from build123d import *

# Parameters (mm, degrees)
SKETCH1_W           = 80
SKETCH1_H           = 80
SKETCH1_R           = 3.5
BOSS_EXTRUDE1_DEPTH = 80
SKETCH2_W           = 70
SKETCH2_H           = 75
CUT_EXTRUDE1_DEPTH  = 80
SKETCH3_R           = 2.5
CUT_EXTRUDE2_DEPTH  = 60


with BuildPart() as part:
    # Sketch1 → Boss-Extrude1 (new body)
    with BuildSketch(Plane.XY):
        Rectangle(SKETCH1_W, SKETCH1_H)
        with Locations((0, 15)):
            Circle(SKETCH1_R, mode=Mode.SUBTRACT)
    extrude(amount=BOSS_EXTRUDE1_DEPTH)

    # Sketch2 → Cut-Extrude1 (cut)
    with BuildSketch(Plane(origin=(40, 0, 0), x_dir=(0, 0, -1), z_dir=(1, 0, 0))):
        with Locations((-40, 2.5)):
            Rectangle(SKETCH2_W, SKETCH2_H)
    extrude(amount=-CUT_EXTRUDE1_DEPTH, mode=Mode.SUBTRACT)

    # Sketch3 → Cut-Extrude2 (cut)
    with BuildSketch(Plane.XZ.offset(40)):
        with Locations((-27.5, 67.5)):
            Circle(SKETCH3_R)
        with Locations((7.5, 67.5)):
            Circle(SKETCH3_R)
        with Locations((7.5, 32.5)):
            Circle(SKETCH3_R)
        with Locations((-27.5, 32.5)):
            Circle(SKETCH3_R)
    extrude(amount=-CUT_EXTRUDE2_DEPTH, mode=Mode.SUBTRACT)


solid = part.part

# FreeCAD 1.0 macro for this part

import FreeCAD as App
import Part
import Sketcher


def add_polygon(sketch, points):
    """Adds a closed chain of lines whose ends are joined by coincident constraints."""
    first, n = sketch.GeometryCount, len(points)
    for a, b in zip(points, points[1:] + points[:1]):
        sketch.addGeometry(Part.LineSegment(App.Vector(*a, 0), App.Vector(*b, 0)), False)
    for i in range(n):
        sketch.addConstraint(Sketcher.Constraint("Coincident", first + i, 2, first + (i + 1) % n, 1))

doc = App.newDocument("Part")
params = doc.addObject("Spreadsheet::Sheet", "Params")
for row, (alias, value) in enumerate([
    ("sketch1_diameter", "7 mm"),
    ("sketch1_width", "80 mm"),
    ("pad1_length", "80 mm"),
    ("sketch2_width", "75 mm"),
    ("sketch2_height", "70 mm"),
    ("pocket1_length", "80 mm"),
    ("sketch3_diameter", "5 mm"),
    ("pocket2_length", "60 mm"),
], start=1):
    params.set(f"A{row}", alias)
    params.set(f"B{row}", "=" + value)
    params.setAlias(f"B{row}", alias)

body = doc.addObject("PartDesign::Body", "Body")

# Sketch on XY plane
sketch1 = body.newObject("Sketcher::SketchObject", "Sketch")
sketch1.AttachmentSupport = (doc.getObject("XY_Plane"), [""])
sketch1.MapMode = "FlatFace"
add_polygon(sketch1, [(-40, 40), (-40, -40), (40, -40), (40, 40)])  # lines 0-3
sketch1.addGeometry(Part.Circle(App.Vector(0, 15, 0), App.Vector(0, 0, 1), 3.5), False)  # 4
sketch1.addConstraint(Sketcher.Constraint("Vertical", 0))
sketch1.addConstraint(Sketcher.Constraint("Horizontal", 1))
sketch1.addConstraint(Sketcher.Constraint("Vertical", 2))
sketch1.addConstraint(Sketcher.Constraint("Horizontal", 3))
sketch1.addConstraint(Sketcher.Constraint("Symmetric", 0, 2, 2, 2, -1, 1))
sketch1.addConstraint(Sketcher.Constraint("PointOnObject", 4, 3, -2))
sketch1.addConstraint(Sketcher.Constraint("Equal", 3, 0))
sketch1.addConstraint(Sketcher.Constraint("Diameter", 4, 7.0))
sketch1.addConstraint(Sketcher.Constraint("DistanceX", 1, 1, 1, 2, 80.0))
sketch1.addConstraint(Sketcher.Constraint("DistanceY", -1, 1, 4, 3, 15.0))
sketch1.setExpression("Constraints[11]", "Params.sketch1_diameter")
sketch1.setExpression("Constraints[12]", "Params.sketch1_width")
pad1 = body.newObject("PartDesign::Pad", "Pad")
pad1.Profile = sketch1
pad1.setExpression("Length", "Params.pad1_length")

# Sketch on YZ plane
sketch2 = body.newObject("Sketcher::SketchObject", "Sketch001")
sketch2.AttachmentSupport = (doc.getObject("YZ_Plane"), [""])
sketch2.MapMode = "FlatFace"
sketch2.AttachmentOffset = App.Placement(App.Vector(0, 0, 40), App.Rotation())
add_polygon(sketch2, [(40, 75), (-35, 75), (-35, 5), (40, 5)])  # lines 0-3
sketch2.addConstraint(Sketcher.Constraint("Horizontal", 0))
sketch2.addConstraint(Sketcher.Constraint("Vertical", 1))
sketch2.addConstraint(Sketcher.Constraint("Horizontal", 2))
sketch2.addConstraint(Sketcher.Constraint("Vertical", 3))
sketch2.addConstraint(Sketcher.Constraint("DistanceX", 0, 2, 0, 1, 75.0))
sketch2.addConstraint(Sketcher.Constraint("DistanceY", 1, 2, 1, 1, 70.0))
sketch2.addConstraint(Sketcher.Constraint("DistanceX", 0, 2, -1, 1, 35.0))
sketch2.addConstraint(Sketcher.Constraint("DistanceY", -1, 1, 0, 2, 75.0))
sketch2.setExpression("Constraints[8]", "Params.sketch2_width")
sketch2.setExpression("Constraints[9]", "Params.sketch2_height")
pocket1 = body.newObject("PartDesign::Pocket", "Pocket")
pocket1.Profile = sketch2
pocket1.setExpression("Length", "Params.pocket1_length")

# Sketch on XZ plane
sketch3 = body.newObject("Sketcher::SketchObject", "Sketch002")
sketch3.AttachmentSupport = (doc.getObject("XZ_Plane"), [""])
sketch3.MapMode = "FlatFace"
sketch3.AttachmentOffset = App.Placement(App.Vector(0, 0, 40), App.Rotation())
sketch3.addGeometry(Part.Circle(App.Vector(-27.5, 67.5, 0), App.Vector(0, 0, 1), 2.5), False)
sketch3.addGeometry(Part.Circle(App.Vector(7.5, 67.5, 0), App.Vector(0, 0, 1), 2.5), False)
sketch3.addGeometry(Part.Circle(App.Vector(7.5, 32.5, 0), App.Vector(0, 0, 1), 2.5), False)
sketch3.addGeometry(Part.Circle(App.Vector(-27.5, 32.5, 0), App.Vector(0, 0, 1), 2.5), False)
sketch3.addConstraint(Sketcher.Constraint("Equal", 0, 1))
sketch3.addConstraint(Sketcher.Constraint("Equal", 1, 2))
sketch3.addConstraint(Sketcher.Constraint("Equal", 2, 3))
sketch3.addConstraint(Sketcher.Constraint("Horizontal", 0, 3, 1, 3))
sketch3.addConstraint(Sketcher.Constraint("Horizontal", 2, 3, 3, 3))
sketch3.addConstraint(Sketcher.Constraint("Vertical", 1, 3, 2, 3))
sketch3.addConstraint(Sketcher.Constraint("Vertical", 0, 3, 3, 3))
sketch3.addConstraint(Sketcher.Constraint("Diameter", 0, 5.0))
sketch3.addConstraint(Sketcher.Constraint("DistanceX", 0, 3, 1, 3, 35.0))
sketch3.addConstraint(Sketcher.Constraint("DistanceY", 2, 3, 1, 3, 35.0))
sketch3.addConstraint(Sketcher.Constraint("DistanceX", 0, 3, -1, 1, 27.5))
sketch3.addConstraint(Sketcher.Constraint("DistanceY", -1, 1, 0, 3, 67.5))
sketch3.setExpression("Constraints[7]", "Params.sketch3_diameter")
pocket2 = body.newObject("PartDesign::Pocket", "Pocket001")
pocket2.Profile = sketch3
pocket2.setExpression("Length", "Params.pocket2_length")

doc.recompute()
